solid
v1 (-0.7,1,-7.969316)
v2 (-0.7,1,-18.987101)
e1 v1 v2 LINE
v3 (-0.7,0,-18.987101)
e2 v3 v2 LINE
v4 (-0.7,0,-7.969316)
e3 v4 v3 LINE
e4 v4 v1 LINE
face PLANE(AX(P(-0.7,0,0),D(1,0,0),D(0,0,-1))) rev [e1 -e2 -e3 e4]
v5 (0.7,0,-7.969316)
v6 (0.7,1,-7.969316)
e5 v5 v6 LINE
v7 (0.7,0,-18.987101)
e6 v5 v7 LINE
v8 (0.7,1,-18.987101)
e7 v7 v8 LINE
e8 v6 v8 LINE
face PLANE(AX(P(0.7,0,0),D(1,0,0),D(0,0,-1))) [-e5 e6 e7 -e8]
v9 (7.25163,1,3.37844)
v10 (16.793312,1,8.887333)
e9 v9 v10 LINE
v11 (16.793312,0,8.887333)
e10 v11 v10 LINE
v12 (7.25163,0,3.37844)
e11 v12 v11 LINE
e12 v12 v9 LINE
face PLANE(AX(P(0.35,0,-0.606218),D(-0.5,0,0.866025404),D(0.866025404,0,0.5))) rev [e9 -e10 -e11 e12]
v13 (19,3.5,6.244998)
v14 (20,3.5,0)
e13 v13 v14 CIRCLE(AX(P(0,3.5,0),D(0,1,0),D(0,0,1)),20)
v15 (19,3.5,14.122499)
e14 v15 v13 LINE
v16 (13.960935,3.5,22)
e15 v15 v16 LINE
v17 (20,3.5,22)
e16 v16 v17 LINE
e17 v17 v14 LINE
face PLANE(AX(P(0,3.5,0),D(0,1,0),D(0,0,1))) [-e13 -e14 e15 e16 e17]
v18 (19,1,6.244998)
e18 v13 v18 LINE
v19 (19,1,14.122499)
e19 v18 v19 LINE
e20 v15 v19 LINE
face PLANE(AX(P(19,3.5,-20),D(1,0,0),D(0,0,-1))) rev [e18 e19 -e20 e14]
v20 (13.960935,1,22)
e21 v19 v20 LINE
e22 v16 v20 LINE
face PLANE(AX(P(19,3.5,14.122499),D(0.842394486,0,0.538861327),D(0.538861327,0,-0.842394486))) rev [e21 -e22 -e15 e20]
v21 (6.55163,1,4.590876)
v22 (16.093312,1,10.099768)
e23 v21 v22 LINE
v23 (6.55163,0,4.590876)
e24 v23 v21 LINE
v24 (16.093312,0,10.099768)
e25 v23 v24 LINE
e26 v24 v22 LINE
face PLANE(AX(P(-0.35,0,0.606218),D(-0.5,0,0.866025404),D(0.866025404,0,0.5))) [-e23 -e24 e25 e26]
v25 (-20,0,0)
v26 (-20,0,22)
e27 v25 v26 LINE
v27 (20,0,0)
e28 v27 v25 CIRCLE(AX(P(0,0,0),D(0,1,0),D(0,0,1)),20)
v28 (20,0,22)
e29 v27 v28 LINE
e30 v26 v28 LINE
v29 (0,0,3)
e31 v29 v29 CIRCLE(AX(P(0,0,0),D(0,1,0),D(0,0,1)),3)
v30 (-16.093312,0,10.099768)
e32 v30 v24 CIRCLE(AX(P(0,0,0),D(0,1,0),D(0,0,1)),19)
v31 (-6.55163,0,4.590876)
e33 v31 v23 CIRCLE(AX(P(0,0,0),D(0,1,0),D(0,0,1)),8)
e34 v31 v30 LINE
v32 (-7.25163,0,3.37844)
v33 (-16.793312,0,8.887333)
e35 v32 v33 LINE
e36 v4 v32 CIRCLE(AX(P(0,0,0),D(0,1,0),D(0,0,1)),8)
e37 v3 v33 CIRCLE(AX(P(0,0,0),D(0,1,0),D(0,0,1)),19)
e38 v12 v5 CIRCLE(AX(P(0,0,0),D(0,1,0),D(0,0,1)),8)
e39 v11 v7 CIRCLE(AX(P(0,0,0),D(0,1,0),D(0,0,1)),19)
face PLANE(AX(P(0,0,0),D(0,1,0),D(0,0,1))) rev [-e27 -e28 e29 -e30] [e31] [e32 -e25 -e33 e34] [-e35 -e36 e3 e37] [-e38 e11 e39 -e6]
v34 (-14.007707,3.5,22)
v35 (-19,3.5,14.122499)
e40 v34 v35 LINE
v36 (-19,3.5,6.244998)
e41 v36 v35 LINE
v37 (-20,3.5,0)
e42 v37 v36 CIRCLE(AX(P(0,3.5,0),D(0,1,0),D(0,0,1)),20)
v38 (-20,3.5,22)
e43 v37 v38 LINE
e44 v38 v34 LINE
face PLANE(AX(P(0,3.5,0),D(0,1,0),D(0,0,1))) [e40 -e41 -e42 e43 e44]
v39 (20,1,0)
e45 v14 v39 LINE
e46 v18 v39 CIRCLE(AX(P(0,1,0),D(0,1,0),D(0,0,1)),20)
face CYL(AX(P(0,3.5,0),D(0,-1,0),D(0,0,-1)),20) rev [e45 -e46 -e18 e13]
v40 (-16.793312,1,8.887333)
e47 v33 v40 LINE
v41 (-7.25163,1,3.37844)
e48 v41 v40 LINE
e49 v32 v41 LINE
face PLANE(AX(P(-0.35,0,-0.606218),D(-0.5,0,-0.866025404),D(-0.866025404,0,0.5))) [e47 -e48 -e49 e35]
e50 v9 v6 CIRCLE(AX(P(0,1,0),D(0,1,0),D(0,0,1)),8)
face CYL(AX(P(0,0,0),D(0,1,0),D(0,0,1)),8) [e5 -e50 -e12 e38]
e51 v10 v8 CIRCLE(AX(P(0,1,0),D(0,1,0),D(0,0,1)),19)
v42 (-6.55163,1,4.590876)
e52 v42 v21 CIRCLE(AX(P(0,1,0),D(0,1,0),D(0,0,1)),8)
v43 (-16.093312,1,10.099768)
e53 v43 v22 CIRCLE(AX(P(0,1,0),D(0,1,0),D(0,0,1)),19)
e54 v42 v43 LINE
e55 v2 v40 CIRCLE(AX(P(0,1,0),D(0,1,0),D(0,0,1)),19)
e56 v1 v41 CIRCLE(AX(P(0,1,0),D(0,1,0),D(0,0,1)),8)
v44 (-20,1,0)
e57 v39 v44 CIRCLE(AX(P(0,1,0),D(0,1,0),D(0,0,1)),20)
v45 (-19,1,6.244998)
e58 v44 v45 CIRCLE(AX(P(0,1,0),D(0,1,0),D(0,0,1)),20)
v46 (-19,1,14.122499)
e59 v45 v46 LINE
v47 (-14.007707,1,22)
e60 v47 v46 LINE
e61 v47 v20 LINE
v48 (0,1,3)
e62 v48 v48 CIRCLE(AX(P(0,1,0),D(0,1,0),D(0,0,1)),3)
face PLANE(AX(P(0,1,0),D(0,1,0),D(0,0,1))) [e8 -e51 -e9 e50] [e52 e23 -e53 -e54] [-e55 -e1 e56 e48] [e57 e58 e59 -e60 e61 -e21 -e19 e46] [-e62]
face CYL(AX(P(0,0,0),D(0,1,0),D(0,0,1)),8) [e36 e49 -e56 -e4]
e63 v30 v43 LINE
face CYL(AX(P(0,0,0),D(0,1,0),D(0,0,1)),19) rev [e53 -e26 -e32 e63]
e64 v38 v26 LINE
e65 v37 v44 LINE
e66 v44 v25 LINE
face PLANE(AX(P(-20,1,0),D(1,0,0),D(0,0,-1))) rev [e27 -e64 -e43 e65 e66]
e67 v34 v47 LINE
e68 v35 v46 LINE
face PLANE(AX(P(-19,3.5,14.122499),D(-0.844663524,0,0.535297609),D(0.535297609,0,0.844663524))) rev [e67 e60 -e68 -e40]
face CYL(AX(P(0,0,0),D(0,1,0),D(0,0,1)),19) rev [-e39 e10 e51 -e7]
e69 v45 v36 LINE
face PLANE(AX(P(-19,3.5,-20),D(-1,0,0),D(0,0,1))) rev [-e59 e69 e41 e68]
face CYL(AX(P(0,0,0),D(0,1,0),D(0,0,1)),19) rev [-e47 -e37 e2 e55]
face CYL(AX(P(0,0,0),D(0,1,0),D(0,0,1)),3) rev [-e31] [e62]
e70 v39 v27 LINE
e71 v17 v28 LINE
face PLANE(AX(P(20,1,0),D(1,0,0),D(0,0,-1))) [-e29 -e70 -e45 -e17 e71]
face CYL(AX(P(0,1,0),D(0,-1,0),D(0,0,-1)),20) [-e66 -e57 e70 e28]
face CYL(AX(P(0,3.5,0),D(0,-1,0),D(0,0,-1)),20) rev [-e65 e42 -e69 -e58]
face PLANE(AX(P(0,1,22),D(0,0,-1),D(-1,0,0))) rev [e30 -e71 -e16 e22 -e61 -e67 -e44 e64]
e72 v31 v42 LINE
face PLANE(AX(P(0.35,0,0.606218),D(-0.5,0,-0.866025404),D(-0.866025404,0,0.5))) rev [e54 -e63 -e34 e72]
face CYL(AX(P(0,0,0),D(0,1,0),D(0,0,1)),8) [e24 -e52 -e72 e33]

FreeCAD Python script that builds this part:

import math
import FreeCAD as App
import Part
import Sketcher
Q = App.Units.Quantity

doc = App.newDocument("Part")
params = doc.addObject("Spreadsheet::Sheet", "Params")
for row, (alias, value) in enumerate([
    ("sketch1_radius", "20 mm"),
    ("sketch1_height", "22 mm"),
    ("pad1_length", "1 mm"),
    ("sketch2_radius", "20 mm"),
    ("sketch2_height", "22 mm"),
    ("pad2_length", "2.5 mm"),
    ("sketch3_radius", "8 mm"),
    ("sketch3_radius2", "19 mm"),
    ("sketch4_diameter", "6 mm"),
    ("sketch5_width", "38 mm"),
    ("sketch5_height", "2.5 mm"),
    ("pad3_length", "2.5 mm"),
], start=1):
    params.set(f"A{row}", alias)
    params.set(f"B{row}", "=" + value)
    params.setAlias(f"B{row}", alias)

body = doc.addObject("PartDesign::Body", "Body")

sketch1 = doc.addObject("Sketcher::SketchObject", "Sketch")
body.addObject(sketch1)
sketch1.AttachmentSupport = (doc.XZ_Plane, [""])
sketch1.MapMode = "FlatFace"
sketch1.addGeometry([
    Part.ArcOfCircle(Part.Circle(App.Vector(0, 0, 0), App.Vector(0, 0, 1), 20), math.radians(180), math.radians(360)),
    Part.LineSegment(App.Vector(-20, 0, 0), App.Vector(-20, 22, 0)),
    Part.LineSegment(App.Vector(-20, 22, 0), App.Vector(20, 22, 0)),
    Part.LineSegment(App.Vector(20, 22, 0), App.Vector(20, 0, 0)),
], False)
sketch1.addConstraint([
    Sketcher.Constraint("Tangent", 0, 1, 1, 1),
    Sketcher.Constraint("Coincident", 1, 2, 2, 1),
    Sketcher.Constraint("Coincident", 2, 2, 3, 1),
    Sketcher.Constraint("Tangent", 3, 2, 0, 2),
    Sketcher.Constraint("Vertical", 1),
    Sketcher.Constraint("Horizontal", 2),
    Sketcher.Constraint("Vertical", 3),
    Sketcher.Constraint("Coincident", 0, 3, -1, 1),
    Sketcher.Constraint("Radius", 0, 20.0),
    Sketcher.Constraint("DistanceY", 1, 1, 1, 2, 22.0),
])
sketch1.setExpression("Constraints[8]", "Params.sketch1_radius")
sketch1.setExpression("Constraints[9]", "Params.sketch1_height")
pad1 = doc.addObject("PartDesign::Pad", "Pad")
body.addObject(pad1)
pad1.Profile = sketch1
pad1.setExpression("Length", "Params.pad1_length")
pad1.Reversed = True

sketch2 = doc.addObject("Sketcher::SketchObject", "Sketch001")
body.addObject(sketch2)
sketch2.AttachmentSupport = (doc.XZ_Plane, [""])
sketch2.MapMode = "FlatFace"
sketch2.AttachmentOffset = App.Placement(App.Vector(0, 0, -1), App.Rotation())
sketch2.addGeometry([
    Part.ArcOfCircle(Part.Circle(App.Vector(0, 0, 0), App.Vector(0, 0, 1), 20), math.radians(0), math.radians(180)),
    Part.LineSegment(App.Vector(-20, 0, 0), App.Vector(-20, 22, 0)),
    Part.LineSegment(App.Vector(-20, 22, 0), App.Vector(20, 22, 0)),
    Part.LineSegment(App.Vector(20, 22, 0), App.Vector(20, 0, 0)),
], False)
sketch2.addConstraint([
    Sketcher.Constraint("Tangent", 0, 2, 1, 1),
    Sketcher.Constraint("Coincident", 1, 2, 2, 1),
    Sketcher.Constraint("Coincident", 2, 2, 3, 1),
    Sketcher.Constraint("Tangent", 3, 2, 0, 1),
    Sketcher.Constraint("Vertical", 1),
    Sketcher.Constraint("Horizontal", 2),
    Sketcher.Constraint("Vertical", 3),
    Sketcher.Constraint("Coincident", 0, 3, -1, 1),
    Sketcher.Constraint("Radius", 0, 20.0),
    Sketcher.Constraint("DistanceY", 1, 1, 1, 2, 22.0),
])
sketch2.setExpression("Constraints[8]", "Params.sketch2_radius")
sketch2.setExpression("Constraints[9]", "Params.sketch2_height")
pad2 = doc.addObject("PartDesign::Pad", "Pad001")
body.addObject(pad2)
pad2.Profile = sketch2
pad2.setExpression("Length", "Params.pad2_length")
pad2.Reversed = True

sketch3 = doc.addObject("Sketcher::SketchObject", "Sketch002")
body.addObject(sketch3)
sketch3.AttachmentSupport = (doc.XZ_Plane, [""])
sketch3.MapMode = "FlatFace"
sketch3.AttachmentOffset = App.Placement(App.Vector(0, 0, -1), App.Rotation())
sketch3.addGeometry([
    Part.ArcOfCircle(Part.Circle(App.Vector(0, 0, 0), App.Vector(0, 0, 1), 8), math.radians(155), math.radians(265)),
    Part.LineSegment(App.Vector(-0.7, -8, 0), App.Vector(-0.7, -19, 0)),
    Part.ArcOfCircle(Part.Circle(App.Vector(0, 0, 0), App.Vector(0, 0, 1), 19), math.radians(152), math.radians(268)),
    Part.LineSegment(App.Vector(-16.8, 8.9, 0), App.Vector(-7.3, 3.4, 0)),
    Part.ArcOfCircle(Part.Circle(App.Vector(0, 0, 0), App.Vector(0, 0, 1), 8), math.radians(0), math.radians(25)),
    Part.LineSegment(App.Vector(7.3, 3.4, 0), App.Vector(16.8, 8.9, 0)),
    Part.ArcOfCircle(Part.Circle(App.Vector(0, 0, 0), App.Vector(0, 0, 1), 19), math.radians(0), math.radians(28)),
    Part.ArcOfCircle(Part.Circle(App.Vector(0, 0, 0), App.Vector(0, 0, 1), 19), math.radians(-88), math.radians(0)),
    Part.LineSegment(App.Vector(0.7, -19, 0), App.Vector(0.7, -8, 0)),
    Part.ArcOfCircle(Part.Circle(App.Vector(0, 0, 0), App.Vector(0, 0, 1), 8), math.radians(-85), math.radians(0)),
    Part.LineSegment(App.Vector(16.1, 10.1, 0), App.Vector(6.6, 4.6, 0)),
    Part.ArcOfCircle(Part.Circle(App.Vector(0, 0, 0), App.Vector(0, 0, 1), 8), math.radians(35), math.radians(145)),
    Part.LineSegment(App.Vector(-6.6, 4.6, 0), App.Vector(-16.1, 10.1, 0)),
    Part.ArcOfCircle(Part.Circle(App.Vector(0, 0, 0), App.Vector(0, 0, 1), 19), math.radians(32), math.radians(148)),
], False)
sketch3.addConstraint([
    Sketcher.Constraint("Coincident", 0, 2, 1, 1),
    Sketcher.Constraint("Coincident", 1, 2, 2, 2),
    Sketcher.Constraint("Coincident", 2, 1, 3, 1),
    Sketcher.Constraint("Coincident", 3, 2, 0, 1),
    Sketcher.Constraint("Coincident", 4, 2, 5, 1),
    Sketcher.Constraint("Coincident", 5, 2, 6, 2),
    Sketcher.Constraint("Tangent", 6, 1, 7, 2),
    Sketcher.Constraint("Coincident", 7, 1, 8, 1),
    Sketcher.Constraint("Coincident", 8, 2, 9, 1),
    Sketcher.Constraint("Tangent", 9, 2, 4, 1),
    Sketcher.Constraint("Coincident", 10, 2, 11, 1),
    Sketcher.Constraint("Coincident", 11, 2, 12, 1),
    Sketcher.Constraint("Coincident", 12, 2, 13, 2),
    Sketcher.Constraint("Coincident", 13, 1, 10, 1),
    Sketcher.Constraint("Vertical", 1),
    Sketcher.Constraint("Vertical", 8),
    Sketcher.Constraint("Coincident", 0, 3, -1, 1),
    Sketcher.Constraint("Coincident", 2, 3, -1, 1),
    Sketcher.Constraint("Coincident", 4, 3, -1, 1),
    Sketcher.Constraint("Coincident", 6, 3, -1, 1),
    Sketcher.Constraint("Coincident", 11, 3, -1, 1),
    Sketcher.Constraint("Coincident", 13, 3, -1, 1),
    Sketcher.Constraint("Equal", 0, 4),
    Sketcher.Constraint("Equal", 2, 6),
    Sketcher.Constraint("Equal", 6, 7),
    Sketcher.Constraint("Equal", 4, 9),
    Sketcher.Constraint("Equal", 9, 11),
    Sketcher.Constraint("Equal", 7, 13),
    Sketcher.Constraint("PointOnObject", 6, 1, -1),
    Sketcher.Constraint("PointOnObject", 9, 2, -1),
    Sketcher.Constraint("Parallel", 5, 10),
    Sketcher.Constraint("Parallel", 3, 12),
    Sketcher.Constraint("Horizontal", 3, 2, 4, 2),
    Sketcher.Constraint("Horizontal", 2, 1, 5, 2),
    Sketcher.Constraint("Horizontal", 1, 2, 7, 1),
    Sketcher.Constraint("Horizontal", 10, 2, 11, 2),
    Sketcher.Constraint("Equal", 5, 10),
    Sketcher.Constraint("Radius", 0, 8.0),
    Sketcher.Constraint("Radius", 2, 19.0),
    Sketcher.Constraint("Angle", 3, Q("-30 deg")),
    Sketcher.Constraint("DistanceX", 0, 2, -1, 1, 0.7),
    Sketcher.Constraint("DistanceX", 10, 2, 4, 2, 0.7),
])
sketch3.setExpression("Constraints[37]", "Params.sketch3_radius")
sketch3.setExpression("Constraints[38]", "Params.sketch3_radius2")
pocket1 = doc.addObject("PartDesign::Pocket", "Pocket")
body.addObject(pocket1)
pocket1.Profile = sketch3
pocket1.Type = "ThroughAll"
pocket1.Reversed = True

sketch4 = doc.addObject("Sketcher::SketchObject", "Sketch003")
body.addObject(sketch4)
sketch4.AttachmentSupport = (doc.XZ_Plane, [""])
sketch4.MapMode = "FlatFace"
sketch4.AttachmentOffset = App.Placement(App.Vector(0, 0, -1), App.Rotation())
sketch4.addGeometry(Part.Circle(App.Vector(0, 0, 0), App.Vector(0, 0, 1), 3), False)
sketch4.addConstraint([
    Sketcher.Constraint("Coincident", 0, 3, -1, 1),
    Sketcher.Constraint("Diameter", 0, 6.0),
])
sketch4.setExpression("Constraints[1]", "Params.sketch4_diameter")
pocket2 = doc.addObject("PartDesign::Pocket", "Pocket001")
body.addObject(pocket2)
pocket2.Profile = sketch4
pocket2.Type = "ThroughAll"
pocket2.Reversed = True

sketch5 = doc.addObject("Sketcher::SketchObject", "Sketch004")
body.addObject(sketch5)
sketch5.AttachmentSupport = (doc.XY_Plane, [""])
sketch5.MapMode = "FlatFace"
sketch5.AttachmentOffset = App.Placement(App.Vector(0, 0, 22), App.Rotation())
sketch5.addGeometry([
    Part.LineSegment(App.Vector(-19, 3.5, 0), App.Vector(-19, 1, 0)),
    Part.LineSegment(App.Vector(-19, 1, 0), App.Vector(19, 1, 0)),
    Part.LineSegment(App.Vector(19, 1, 0), App.Vector(19, 3.5, 0)),
    Part.LineSegment(App.Vector(19, 3.5, 0), App.Vector(-19, 3.5, 0)),
], False)
sketch5.addConstraint([
    Sketcher.Constraint("Coincident", 0, 2, 1, 1),
    Sketcher.Constraint("Coincident", 1, 2, 2, 1),
    Sketcher.Constraint("Coincident", 2, 2, 3, 1),
    Sketcher.Constraint("Coincident", 3, 2, 0, 1),
    Sketcher.Constraint("Vertical", 0),
    Sketcher.Constraint("Horizontal", 1),
    Sketcher.Constraint("Vertical", 2),
    Sketcher.Constraint("Horizontal", 3),
    Sketcher.Constraint("DistanceX", 1, 1, 1, 2, 38.0),
    Sketcher.Constraint("DistanceY", 0, 2, 0, 1, 2.5),
    Sketcher.Constraint("DistanceX", 0, 2, -1, 1, 19.0),
    Sketcher.Constraint("DistanceY", -1, 1, 0, 2, 1.0),
])
sketch5.setExpression("Constraints[8]", "Params.sketch5_width")
sketch5.setExpression("Constraints[9]", "Params.sketch5_height")
pocket3 = doc.addObject("PartDesign::Pocket", "Pocket002")
body.addObject(pocket3)
pocket3.Profile = sketch5
pocket3.Type = "ThroughAll"

sketch6 = doc.addObject("Sketcher::SketchObject", "Sketch005")
body.addObject(sketch6)
sketch6.AttachmentSupport = (doc.XZ_Plane, [""])
sketch6.MapMode = "FlatFace"
sketch6.AttachmentOffset = App.Placement(App.Vector(0, 0, -1), App.Rotation())
sketch6.addGeometry([
    Part.LineSegment(App.Vector(19, 14.1, 0), App.Vector(14, 22, 0)),
    Part.LineSegment(App.Vector(14, 22, 0), App.Vector(19, 22, 0)),
    Part.LineSegment(App.Vector(19, 22, 0), App.Vector(19, 14.1, 0)),
    Part.LineSegment(App.Vector(-14, 22, 0), App.Vector(-19, 14.1, 0)),
    Part.LineSegment(App.Vector(-19, 14.1, 0), App.Vector(-19, 22, 0)),
    Part.LineSegment(App.Vector(-19, 22, 0), App.Vector(-14, 22, 0)),
], False)
sketch6.addConstraint([
    Sketcher.Constraint("Coincident", 0, 2, 1, 1),
    Sketcher.Constraint("Coincident", 1, 2, 2, 1),
    Sketcher.Constraint("Coincident", 2, 2, 0, 1),
    Sketcher.Constraint("Coincident", 3, 2, 4, 1),
    Sketcher.Constraint("Coincident", 4, 2, 5, 1),
    Sketcher.Constraint("Coincident", 5, 2, 3, 1),
    Sketcher.Constraint("Horizontal", 1),
    Sketcher.Constraint("Vertical", 2),
    Sketcher.Constraint("Vertical", 4),
    Sketcher.Constraint("Horizontal", 5),
    Sketcher.Constraint("Symmetric", 2, 2, 3, 2, -2),
    Sketcher.Constraint("Horizontal", 1, 2, 4, 2),
    Sketcher.Constraint("DistanceY", -1, 1, 0, 2, 22.0),
    Sketcher.Constraint("DistanceX", -1, 1, 1, 2, 19.0),
    Sketcher.Constraint("DistanceY", 2, 2, 2, 1, 7.877501),
    Sketcher.Constraint("Distance", 3, 9.3262),
    Sketcher.Constraint("Distance", 0, 9.351321),
])
pad3 = doc.addObject("PartDesign::Pad", "Pad002")
body.addObject(pad3)
pad3.Profile = sketch6
pad3.setExpression("Length", "Params.pad3_length")
pad3.Reversed = True

doc.recompute()
